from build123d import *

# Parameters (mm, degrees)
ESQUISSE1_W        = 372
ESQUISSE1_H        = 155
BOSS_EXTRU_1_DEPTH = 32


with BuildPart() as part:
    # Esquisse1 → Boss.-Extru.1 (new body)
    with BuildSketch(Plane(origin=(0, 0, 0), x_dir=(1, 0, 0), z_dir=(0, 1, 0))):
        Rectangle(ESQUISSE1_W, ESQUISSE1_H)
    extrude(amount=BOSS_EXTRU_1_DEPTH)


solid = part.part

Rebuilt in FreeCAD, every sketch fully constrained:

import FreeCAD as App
import Part
import Sketcher

V = App.Vector
Q = App.Units.Quantity


def add_polygon(sketch, points):
    """Adds a closed chain of lines whose ends are joined by coincident constraints."""
    first, n = sketch.GeometryCount, len(points)
    for a, b in zip(points, points[1:] + points[:1]):
        sketch.addGeometry(Part.LineSegment(App.Vector(*a, 0), App.Vector(*b, 0)), False)
    for i in range(n):
        sketch.addConstraint(Sketcher.Constraint("Coincident", first + i, 2, first + (i + 1) % n, 1))

doc = App.newDocument("Part")
body = doc.addObject("PartDesign::Body", "Body")

sketch1 = body.newObject("Sketcher::SketchObject", "Sketch")
sketch1.AttachmentSupport = (doc.getObject("XZ_Plane"), [""])
sketch1.MapMode = "FlatFace"
add_polygon(sketch1, [(-186, -77.5), (-186, 77.5), (186, 77.5), (186, -77.5)])
sketch1.addConstraint([
    Sketcher.Constraint("Vertical", 0),
    Sketcher.Constraint("Horizontal", 1),
    Sketcher.Constraint("Vertical", 2),
    Sketcher.Constraint("Horizontal", 3),
    Sketcher.Constraint("Symmetric", 0, 2, 2, 2, -1, 1),
    Sketcher.Constraint("DistanceX", 1, 1, 1, 2, Q("372 mm")),
    Sketcher.Constraint("DistanceY", 0, 1, 0, 2, Q("155 mm")),
])
pad1 = body.newObject("PartDesign::Pad", "Pad")
pad1.Profile = sketch1
pad1.Length = 32
pad1.Reversed = True

doc.recompute()
